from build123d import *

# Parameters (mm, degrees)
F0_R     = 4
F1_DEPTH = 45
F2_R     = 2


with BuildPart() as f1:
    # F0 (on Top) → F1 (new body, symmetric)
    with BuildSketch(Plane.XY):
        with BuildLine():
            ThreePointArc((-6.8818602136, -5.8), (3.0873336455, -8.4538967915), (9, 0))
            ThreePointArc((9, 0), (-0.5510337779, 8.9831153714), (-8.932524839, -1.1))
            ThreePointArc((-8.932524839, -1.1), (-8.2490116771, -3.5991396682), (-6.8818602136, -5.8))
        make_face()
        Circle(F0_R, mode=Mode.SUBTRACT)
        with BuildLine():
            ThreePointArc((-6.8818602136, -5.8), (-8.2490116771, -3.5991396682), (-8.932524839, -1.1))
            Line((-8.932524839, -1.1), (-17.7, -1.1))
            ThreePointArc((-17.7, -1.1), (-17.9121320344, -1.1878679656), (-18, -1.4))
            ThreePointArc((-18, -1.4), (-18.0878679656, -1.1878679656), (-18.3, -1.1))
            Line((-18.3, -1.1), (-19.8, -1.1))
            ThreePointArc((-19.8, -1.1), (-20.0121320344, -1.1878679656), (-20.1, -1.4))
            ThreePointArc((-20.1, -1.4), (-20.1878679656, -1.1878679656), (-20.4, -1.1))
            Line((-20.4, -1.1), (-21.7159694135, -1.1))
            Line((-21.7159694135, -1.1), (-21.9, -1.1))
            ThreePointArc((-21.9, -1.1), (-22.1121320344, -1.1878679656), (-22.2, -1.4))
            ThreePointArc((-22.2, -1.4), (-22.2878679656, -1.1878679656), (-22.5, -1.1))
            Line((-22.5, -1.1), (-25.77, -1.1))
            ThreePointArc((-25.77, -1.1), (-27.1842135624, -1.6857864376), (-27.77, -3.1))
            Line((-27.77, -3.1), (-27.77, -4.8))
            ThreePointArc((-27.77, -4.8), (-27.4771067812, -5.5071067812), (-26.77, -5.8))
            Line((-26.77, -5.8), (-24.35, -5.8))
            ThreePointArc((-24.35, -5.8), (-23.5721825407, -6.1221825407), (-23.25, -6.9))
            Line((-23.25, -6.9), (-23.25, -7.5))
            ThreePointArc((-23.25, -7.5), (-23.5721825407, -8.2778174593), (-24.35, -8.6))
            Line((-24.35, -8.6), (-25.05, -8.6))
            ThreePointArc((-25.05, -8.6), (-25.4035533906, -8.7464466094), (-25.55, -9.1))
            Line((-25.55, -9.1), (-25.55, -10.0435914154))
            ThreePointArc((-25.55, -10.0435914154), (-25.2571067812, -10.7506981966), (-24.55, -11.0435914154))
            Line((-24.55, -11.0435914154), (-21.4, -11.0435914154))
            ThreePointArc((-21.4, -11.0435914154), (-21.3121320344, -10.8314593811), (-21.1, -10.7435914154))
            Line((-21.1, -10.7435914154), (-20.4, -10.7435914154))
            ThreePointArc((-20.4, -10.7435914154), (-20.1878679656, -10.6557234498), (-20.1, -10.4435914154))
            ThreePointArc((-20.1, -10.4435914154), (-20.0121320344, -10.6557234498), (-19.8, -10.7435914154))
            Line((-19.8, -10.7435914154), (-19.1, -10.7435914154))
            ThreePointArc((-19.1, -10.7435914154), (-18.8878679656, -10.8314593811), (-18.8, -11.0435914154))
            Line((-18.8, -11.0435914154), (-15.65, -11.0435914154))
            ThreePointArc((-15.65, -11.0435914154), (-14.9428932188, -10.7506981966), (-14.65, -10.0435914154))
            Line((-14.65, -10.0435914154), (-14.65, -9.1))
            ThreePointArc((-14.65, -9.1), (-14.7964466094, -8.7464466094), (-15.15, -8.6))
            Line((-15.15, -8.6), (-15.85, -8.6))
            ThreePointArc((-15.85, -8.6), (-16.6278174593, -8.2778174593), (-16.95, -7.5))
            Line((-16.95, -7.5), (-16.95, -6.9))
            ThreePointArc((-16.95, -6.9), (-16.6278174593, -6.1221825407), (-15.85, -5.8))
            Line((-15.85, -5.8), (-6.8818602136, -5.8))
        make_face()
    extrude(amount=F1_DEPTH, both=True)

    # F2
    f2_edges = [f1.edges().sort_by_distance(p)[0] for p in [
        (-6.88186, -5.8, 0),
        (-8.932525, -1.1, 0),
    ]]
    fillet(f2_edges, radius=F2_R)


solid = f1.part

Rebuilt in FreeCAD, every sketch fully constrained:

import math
import FreeCAD as App
import Part
import Sketcher


def edges_at(feature, points):
    """Names of the edges that pass closest to the given points."""
    edges = feature.Shape.Edges
    near = lambda p: min(range(len(edges)), key=lambda i: edges[i].distToShape(Part.Vertex(*p))[0])
    return sorted({f"Edge{near(p) + 1}" for p in points})

doc = App.newDocument("Part")
body = doc.addObject("PartDesign::Body", "Body")

sketch1 = doc.addObject("Sketcher::SketchObject", "Sketch")
body.addObject(sketch1)
sketch1.AttachmentSupport = (doc.XY_Plane, [""])
sketch1.MapMode = "FlatFace"
sketch1.addGeometry(Part.ArcOfCircle(Part.Circle(App.Vector(0, 0, 0), App.Vector(0, 0, 1), 9), math.radians(-139.875965), math.radians(0)), False)
sketch1.addGeometry(Part.ArcOfCircle(Part.Circle(App.Vector(0, 0, 0), App.Vector(0, 0, 1), 9), math.radians(0), math.radians(187.020371)), False)
sketch1.addGeometry(Part.LineSegment(App.Vector(-8.932525, -1.1, 0), App.Vector(-17.7, -1.1, 0)), False)
sketch1.addGeometry(Part.ArcOfCircle(Part.Circle(App.Vector(-17.7, -1.4, 0), App.Vector(0, 0, 1), 0.3), math.radians(90), math.radians(180)), False)
sketch1.addGeometry(Part.ArcOfCircle(Part.Circle(App.Vector(-18.3, -1.4, 0), App.Vector(0, 0, 1), 0.3), math.radians(0), math.radians(90)), False)
sketch1.addGeometry(Part.LineSegment(App.Vector(-18.3, -1.1, 0), App.Vector(-19.8, -1.1, 0)), False)
sketch1.addGeometry(Part.ArcOfCircle(Part.Circle(App.Vector(-19.8, -1.4, 0), App.Vector(0, 0, 1), 0.3), math.radians(90), math.radians(180)), False)
sketch1.addGeometry(Part.ArcOfCircle(Part.Circle(App.Vector(-20.4, -1.4, 0), App.Vector(0, 0, 1), 0.3), math.radians(0), math.radians(90)), False)
sketch1.addGeometry(Part.LineSegment(App.Vector(-20.4, -1.1, 0), App.Vector(-21.9, -1.1, 0)), False)
sketch1.addGeometry(Part.ArcOfCircle(Part.Circle(App.Vector(-21.9, -1.4, 0), App.Vector(0, 0, 1), 0.3), math.radians(90), math.radians(180)), False)
sketch1.addGeometry(Part.ArcOfCircle(Part.Circle(App.Vector(-22.5, -1.4, 0), App.Vector(0, 0, 1), 0.3), math.radians(0), math.radians(90)), False)
sketch1.addGeometry(Part.LineSegment(App.Vector(-22.5, -1.1, 0), App.Vector(-25.77, -1.1, 0)), False)
sketch1.addGeometry(Part.ArcOfCircle(Part.Circle(App.Vector(-25.77, -3.1, 0), App.Vector(0, 0, 1), 2), math.radians(90), math.radians(180)), False)
sketch1.addGeometry(Part.LineSegment(App.Vector(-27.77, -3.1, 0), App.Vector(-27.77, -4.8, 0)), False)
sketch1.addGeometry(Part.ArcOfCircle(Part.Circle(App.Vector(-26.77, -4.8, 0), App.Vector(0, 0, 1), 1), math.radians(180), math.radians(270)), False)
sketch1.addGeometry(Part.LineSegment(App.Vector(-26.77, -5.8, 0), App.Vector(-24.35, -5.8, 0)), False)
sketch1.addGeometry(Part.ArcOfCircle(Part.Circle(App.Vector(-24.35, -6.9, 0), App.Vector(0, 0, 1), 1.1), math.radians(0), math.radians(90)), False)
sketch1.addGeometry(Part.LineSegment(App.Vector(-23.25, -6.9, 0), App.Vector(-23.25, -7.5, 0)), False)
sketch1.addGeometry(Part.ArcOfCircle(Part.Circle(App.Vector(-24.35, -7.5, 0), App.Vector(0, 0, 1), 1.1), math.radians(-90), math.radians(0)), False)
sketch1.addGeometry(Part.LineSegment(App.Vector(-24.35, -8.6, 0), App.Vector(-25.05, -8.6, 0)), False)
sketch1.addGeometry(Part.ArcOfCircle(Part.Circle(App.Vector(-25.05, -9.1, 0), App.Vector(0, 0, 1), 0.5), math.radians(90), math.radians(180)), False)
sketch1.addGeometry(Part.LineSegment(App.Vector(-25.55, -9.1, 0), App.Vector(-25.55, -10.043591, 0)), False)
sketch1.addGeometry(Part.ArcOfCircle(Part.Circle(App.Vector(-24.55, -10.043591, 0), App.Vector(0, 0, 1), 1), math.radians(180), math.radians(270)), False)
sketch1.addGeometry(Part.LineSegment(App.Vector(-24.55, -11.043591, 0), App.Vector(-21.4, -11.043591, 0)), False)
sketch1.addGeometry(Part.ArcOfCircle(Part.Circle(App.Vector(-21.1, -11.043591, 0), App.Vector(0, 0, 1), 0.3), math.radians(90), math.radians(180)), False)
sketch1.addGeometry(Part.LineSegment(App.Vector(-21.1, -10.743591, 0), App.Vector(-20.4, -10.743591, 0)), False)
sketch1.addGeometry(Part.ArcOfCircle(Part.Circle(App.Vector(-20.4, -10.443591, 0), App.Vector(0, 0, 1), 0.3), math.radians(-90), math.radians(0)), False)
sketch1.addGeometry(Part.ArcOfCircle(Part.Circle(App.Vector(-19.8, -10.443591, 0), App.Vector(0, 0, 1), 0.3), math.radians(180), math.radians(270)), False)
sketch1.addGeometry(Part.LineSegment(App.Vector(-19.8, -10.743591, 0), App.Vector(-19.1, -10.743591, 0)), False)
sketch1.addGeometry(Part.ArcOfCircle(Part.Circle(App.Vector(-19.1, -11.043591, 0), App.Vector(0, 0, 1), 0.3), math.radians(0), math.radians(90)), False)
sketch1.addGeometry(Part.LineSegment(App.Vector(-18.8, -11.043591, 0), App.Vector(-15.65, -11.043591, 0)), False)
sketch1.addGeometry(Part.ArcOfCircle(Part.Circle(App.Vector(-15.65, -10.043591, 0), App.Vector(0, 0, 1), 1), math.radians(-90), math.radians(0)), False)
sketch1.addGeometry(Part.LineSegment(App.Vector(-14.65, -10.043591, 0), App.Vector(-14.65, -9.1, 0)), False)
sketch1.addGeometry(Part.ArcOfCircle(Part.Circle(App.Vector(-15.15, -9.1, 0), App.Vector(0, 0, 1), 0.5), math.radians(0), math.radians(90)), False)
sketch1.addGeometry(Part.LineSegment(App.Vector(-15.15, -8.6, 0), App.Vector(-15.85, -8.6, 0)), False)
sketch1.addGeometry(Part.ArcOfCircle(Part.Circle(App.Vector(-15.85, -7.5, 0), App.Vector(0, 0, 1), 1.1), math.radians(180), math.radians(270)), False)
sketch1.addGeometry(Part.LineSegment(App.Vector(-16.95, -7.5, 0), App.Vector(-16.95, -6.9, 0)), False)
sketch1.addGeometry(Part.ArcOfCircle(Part.Circle(App.Vector(-15.85, -6.9, 0), App.Vector(0, 0, 1), 1.1), math.radians(90), math.radians(180)), False)
sketch1.addGeometry(Part.LineSegment(App.Vector(-15.85, -5.8, 0), App.Vector(-6.88186, -5.8, 0)), False)
sketch1.addGeometry(Part.Circle(App.Vector(0, 0, 0), App.Vector(0, 0, 1), 4), False)
sketch1.addConstraint(Sketcher.Constraint("Tangent", 0, 2, 1, 1))
sketch1.addConstraint(Sketcher.Constraint("Coincident", 1, 2, 2, 1))
sketch1.addConstraint(Sketcher.Constraint("Tangent", 2, 2, 3, 1))
sketch1.addConstraint(Sketcher.Constraint("Tangent", 3, 2, 4, 1))
sketch1.addConstraint(Sketcher.Constraint("Tangent", 4, 2, 5, 1))
sketch1.addConstraint(Sketcher.Constraint("Tangent", 5, 2, 6, 1))
sketch1.addConstraint(Sketcher.Constraint("Tangent", 6, 2, 7, 1))
sketch1.addConstraint(Sketcher.Constraint("Tangent", 7, 2, 8, 1))
sketch1.addConstraint(Sketcher.Constraint("Tangent", 8, 2, 9, 1))
sketch1.addConstraint(Sketcher.Constraint("Tangent", 9, 2, 10, 1))
sketch1.addConstraint(Sketcher.Constraint("Tangent", 10, 2, 11, 1))
sketch1.addConstraint(Sketcher.Constraint("Tangent", 11, 2, 12, 1))
sketch1.addConstraint(Sketcher.Constraint("Tangent", 12, 2, 13, 1))
sketch1.addConstraint(Sketcher.Constraint("Tangent", 13, 2, 14, 1))
sketch1.addConstraint(Sketcher.Constraint("Tangent", 14, 2, 15, 1))
sketch1.addConstraint(Sketcher.Constraint("Tangent", 15, 2, 16, 2))
sketch1.addConstraint(Sketcher.Constraint("Tangent", 16, 1, 17, 1))
sketch1.addConstraint(Sketcher.Constraint("Tangent", 17, 2, 18, 2))
sketch1.addConstraint(Sketcher.Constraint("Tangent", 18, 1, 19, 1))
sketch1.addConstraint(Sketcher.Constraint("Tangent", 19, 2, 20, 1))
sketch1.addConstraint(Sketcher.Constraint("Tangent", 20, 2, 21, 1))
sketch1.addConstraint(Sketcher.Constraint("Tangent", 21, 2, 22, 1))
sketch1.addConstraint(Sketcher.Constraint("Tangent", 22, 2, 23, 1))
sketch1.addConstraint(Sketcher.Constraint("Coincident", 23, 2, 24, 2))
sketch1.addConstraint(Sketcher.Constraint("Tangent", 24, 1, 25, 1))
sketch1.addConstraint(Sketcher.Constraint("Tangent", 25, 2, 26, 1))
sketch1.addConstraint(Sketcher.Constraint("Tangent", 26, 2, 27, 1))
sketch1.addConstraint(Sketcher.Constraint("Tangent", 27, 2, 28, 1))
sketch1.addConstraint(Sketcher.Constraint("Tangent", 28, 2, 29, 2))
sketch1.addConstraint(Sketcher.Constraint("Coincident", 29, 1, 30, 1))
sketch1.addConstraint(Sketcher.Constraint("Tangent", 30, 2, 31, 1))
sketch1.addConstraint(Sketcher.Constraint("Tangent", 31, 2, 32, 1))
sketch1.addConstraint(Sketcher.Constraint("Tangent", 32, 2, 33, 1))
sketch1.addConstraint(Sketcher.Constraint("Tangent", 33, 2, 34, 1))
sketch1.addConstraint(Sketcher.Constraint("Tangent", 34, 2, 35, 2))
sketch1.addConstraint(Sketcher.Constraint("Tangent", 35, 1, 36, 1))
sketch1.addConstraint(Sketcher.Constraint("Tangent", 36, 2, 37, 2))
sketch1.addConstraint(Sketcher.Constraint("Tangent", 37, 1, 38, 1))
sketch1.addConstraint(Sketcher.Constraint("Coincident", 38, 2, 0, 1))
sketch1.addConstraint(Sketcher.Constraint("Horizontal", 2))
sketch1.addConstraint(Sketcher.Constraint("Horizontal", 5))
sketch1.addConstraint(Sketcher.Constraint("Horizontal", 8))
sketch1.addConstraint(Sketcher.Constraint("Horizontal", 11))
sketch1.addConstraint(Sketcher.Constraint("Vertical", 13))
sketch1.addConstraint(Sketcher.Constraint("Horizontal", 15))
sketch1.addConstraint(Sketcher.Constraint("Vertical", 17))
sketch1.addConstraint(Sketcher.Constraint("Horizontal", 19))
sketch1.addConstraint(Sketcher.Constraint("Vertical", 21))
sketch1.addConstraint(Sketcher.Constraint("Horizontal", 23))
sketch1.addConstraint(Sketcher.Constraint("Horizontal", 25))
sketch1.addConstraint(Sketcher.Constraint("Horizontal", 28))
sketch1.addConstraint(Sketcher.Constraint("Horizontal", 30))
sketch1.addConstraint(Sketcher.Constraint("Vertical", 32))
sketch1.addConstraint(Sketcher.Constraint("Horizontal", 34))
sketch1.addConstraint(Sketcher.Constraint("Vertical", 36))
sketch1.addConstraint(Sketcher.Constraint("Horizontal", 38))
sketch1.addConstraint(Sketcher.Constraint("Coincident", 0, 3, -1, 1))
sketch1.addConstraint(Sketcher.Constraint("Coincident", 39, 3, -1, 1))
sketch1.addConstraint(Sketcher.Constraint("Equal", 0, 1))
sketch1.addConstraint(Sketcher.Constraint("Equal", 3, 4))
sketch1.addConstraint(Sketcher.Constraint("Equal", 4, 6))
sketch1.addConstraint(Sketcher.Constraint("Equal", 6, 7))
sketch1.addConstraint(Sketcher.Constraint("Equal", 7, 9))
sketch1.addConstraint(Sketcher.Constraint("Equal", 9, 10))
sketch1.addConstraint(Sketcher.Constraint("Equal", 16, 18))
sketch1.addConstraint(Sketcher.Constraint("Equal", 14, 22))
sketch1.addConstraint(Sketcher.Constraint("Equal", 10, 24))
sketch1.addConstraint(Sketcher.Constraint("Equal", 24, 26))
sketch1.addConstraint(Sketcher.Constraint("Equal", 26, 27))
sketch1.addConstraint(Sketcher.Constraint("Equal", 27, 29))
sketch1.addConstraint(Sketcher.Constraint("Equal", 22, 31))
sketch1.addConstraint(Sketcher.Constraint("Equal", 20, 33))
sketch1.addConstraint(Sketcher.Constraint("Equal", 18, 35))
sketch1.addConstraint(Sketcher.Constraint("Equal", 35, 37))
sketch1.addConstraint(Sketcher.Constraint("PointOnObject", 0, 2, -1))
sketch1.addConstraint(Sketcher.Constraint("Horizontal", 3, 3, 4, 3))
sketch1.addConstraint(Sketcher.Constraint("Horizontal", 6, 3, 7, 3))
sketch1.addConstraint(Sketcher.Constraint("Horizontal", 9, 3, 10, 3))
sketch1.addConstraint(Sketcher.Constraint("Horizontal", 26, 3, 27, 3))
sketch1.addConstraint(Sketcher.Constraint("Horizontal", 22, 3, 31, 3))
sketch1.addConstraint(Sketcher.Constraint("Horizontal", 20, 3, 33, 3))
sketch1.addConstraint(Sketcher.Constraint("Horizontal", 16, 3, 37, 3))
sketch1.addConstraint(Sketcher.Constraint("Horizontal", 29, 3, 22, 2))
sketch1.addConstraint(Sketcher.Constraint("Vertical", 7, 3, 26, 3))
sketch1.addConstraint(Sketcher.Constraint("Equal", 5, 8))
sketch1.addConstraint(Sketcher.Constraint("Equal", 19, 25))
sketch1.addConstraint(Sketcher.Constraint("Equal", 25, 28))
sketch1.addConstraint(Sketcher.Constraint("Equal", 23, 30))
sketch1.addConstraint(Sketcher.Constraint("Equal", 28, 34))
sketch1.addConstraint(Sketcher.Constraint("Diameter", 39, 8.0))
sketch1.addConstraint(Sketcher.Constraint("Radius", 0, 9.0))
sketch1.addConstraint(Sketcher.Constraint("Radius", 12, 2.0))
sketch1.addConstraint(Sketcher.Constraint("Radius", 14, 1.0))
sketch1.addConstraint(Sketcher.Constraint("Radius", 3, 0.3))
sketch1.addConstraint(Sketcher.Constraint("Radius", 16, 1.1))
sketch1.addConstraint(Sketcher.Constraint("Radius", 20, 0.5))
sketch1.addConstraint(Sketcher.Constraint("DistanceX", 5, 2, 5, 1, 1.5))
sketch1.addConstraint(Sketcher.Constraint("DistanceX", 19, 2, 19, 1, 0.7))
sketch1.addConstraint(Sketcher.Constraint("DistanceY", 13, 2, 13, 1, 1.7))
sketch1.addConstraint(Sketcher.Constraint("DistanceY", 17, 2, 17, 1, 0.6))
sketch1.addConstraint(Sketcher.Constraint("DistanceX", 3, 2, -1, 1, 18.0))
sketch1.addConstraint(Sketcher.Constraint("DistanceX", 11, 2, 11, 1, 3.27))
sketch1.addConstraint(Sketcher.Constraint("DistanceX", 15, 1, 15, 2, 2.42))
sketch1.addConstraint(Sketcher.Constraint("DistanceY", 3, 3, -1, 1, 1.4))
sketch1.addConstraint(Sketcher.Constraint("DistanceY", 21, 2, 21, 1, 0.943591))
pad1 = doc.addObject("PartDesign::Pad", "Pad")
body.addObject(pad1)
pad1.Profile = sketch1
pad1.Length = 90
pad1.Midplane = True
doc.recompute()

fillet = doc.addObject("PartDesign::Fillet", "Fillet")
body.addObject(fillet)
fillet.Base = (pad1, edges_at(pad1, [(-6.882, -5.8, 0), (-8.933, -1.1, 0)]))
fillet.Radius = 2

doc.recompute()
